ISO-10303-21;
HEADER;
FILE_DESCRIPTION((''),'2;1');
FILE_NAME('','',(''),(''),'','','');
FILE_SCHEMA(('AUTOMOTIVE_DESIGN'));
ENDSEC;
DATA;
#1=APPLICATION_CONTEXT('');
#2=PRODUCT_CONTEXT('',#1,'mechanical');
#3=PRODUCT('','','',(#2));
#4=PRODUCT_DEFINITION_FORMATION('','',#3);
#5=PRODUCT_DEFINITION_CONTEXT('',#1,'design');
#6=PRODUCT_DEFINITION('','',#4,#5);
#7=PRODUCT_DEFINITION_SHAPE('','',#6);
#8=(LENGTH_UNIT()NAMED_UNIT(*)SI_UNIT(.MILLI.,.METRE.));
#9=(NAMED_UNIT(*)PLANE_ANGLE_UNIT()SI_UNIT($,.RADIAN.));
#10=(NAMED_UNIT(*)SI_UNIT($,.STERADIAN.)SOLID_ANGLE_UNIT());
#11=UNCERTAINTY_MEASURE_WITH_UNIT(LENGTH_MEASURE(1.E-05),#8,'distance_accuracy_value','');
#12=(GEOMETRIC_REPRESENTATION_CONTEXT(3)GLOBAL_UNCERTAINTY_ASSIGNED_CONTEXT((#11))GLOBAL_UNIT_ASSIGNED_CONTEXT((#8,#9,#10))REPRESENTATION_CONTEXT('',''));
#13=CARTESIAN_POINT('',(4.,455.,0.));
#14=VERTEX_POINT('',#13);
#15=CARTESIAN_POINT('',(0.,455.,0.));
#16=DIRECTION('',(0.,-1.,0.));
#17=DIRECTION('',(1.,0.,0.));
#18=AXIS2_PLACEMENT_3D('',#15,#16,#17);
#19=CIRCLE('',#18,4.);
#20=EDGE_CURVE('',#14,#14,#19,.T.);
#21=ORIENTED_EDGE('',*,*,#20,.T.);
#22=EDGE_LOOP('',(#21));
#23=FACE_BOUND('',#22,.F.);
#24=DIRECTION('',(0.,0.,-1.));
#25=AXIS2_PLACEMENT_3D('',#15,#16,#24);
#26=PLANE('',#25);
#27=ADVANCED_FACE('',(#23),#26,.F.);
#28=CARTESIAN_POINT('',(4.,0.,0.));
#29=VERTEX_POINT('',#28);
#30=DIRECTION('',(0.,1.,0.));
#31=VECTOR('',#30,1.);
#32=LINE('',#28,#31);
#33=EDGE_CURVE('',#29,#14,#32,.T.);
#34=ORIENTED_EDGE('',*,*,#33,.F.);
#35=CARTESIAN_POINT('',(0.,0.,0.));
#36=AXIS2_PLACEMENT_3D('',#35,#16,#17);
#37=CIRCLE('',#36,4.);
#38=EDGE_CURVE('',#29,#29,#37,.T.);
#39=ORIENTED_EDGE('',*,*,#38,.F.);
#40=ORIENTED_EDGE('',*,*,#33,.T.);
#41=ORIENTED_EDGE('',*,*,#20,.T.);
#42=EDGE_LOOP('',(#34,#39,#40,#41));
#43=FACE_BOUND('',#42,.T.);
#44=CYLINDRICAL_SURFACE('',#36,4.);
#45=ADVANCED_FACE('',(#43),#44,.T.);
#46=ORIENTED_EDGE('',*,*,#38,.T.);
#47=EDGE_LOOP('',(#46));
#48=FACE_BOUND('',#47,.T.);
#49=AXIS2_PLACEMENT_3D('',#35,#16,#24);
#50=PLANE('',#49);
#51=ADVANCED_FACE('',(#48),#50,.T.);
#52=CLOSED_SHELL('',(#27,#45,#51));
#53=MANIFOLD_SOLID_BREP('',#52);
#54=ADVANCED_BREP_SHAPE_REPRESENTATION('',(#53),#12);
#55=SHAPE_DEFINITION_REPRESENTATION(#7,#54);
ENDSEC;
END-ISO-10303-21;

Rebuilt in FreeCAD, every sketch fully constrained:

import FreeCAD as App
import Part
import Sketcher

V = App.Vector

doc = App.newDocument("Part")
body = doc.addObject("PartDesign::Body", "Body")

sketch1 = body.newObject("Sketcher::SketchObject", "Sketch")
sketch1.AttachmentSupport = (doc.getObject("XZ_Plane"), [""])
sketch1.MapMode = "FlatFace"
sketch1.addGeometry(Part.Circle(V(0, 0, 0), V(0, 0, 1), 4), False)
sketch1.addConstraint(Sketcher.Constraint("Coincident", 0, 3, -1, 1))
sketch1.addConstraint(Sketcher.Constraint("Diameter", 0, 8.0))
pad1 = body.newObject("PartDesign::Pad", "Pad")
pad1.Profile = sketch1
pad1.Length = 455
pad1.Reversed = True

doc.recompute()
